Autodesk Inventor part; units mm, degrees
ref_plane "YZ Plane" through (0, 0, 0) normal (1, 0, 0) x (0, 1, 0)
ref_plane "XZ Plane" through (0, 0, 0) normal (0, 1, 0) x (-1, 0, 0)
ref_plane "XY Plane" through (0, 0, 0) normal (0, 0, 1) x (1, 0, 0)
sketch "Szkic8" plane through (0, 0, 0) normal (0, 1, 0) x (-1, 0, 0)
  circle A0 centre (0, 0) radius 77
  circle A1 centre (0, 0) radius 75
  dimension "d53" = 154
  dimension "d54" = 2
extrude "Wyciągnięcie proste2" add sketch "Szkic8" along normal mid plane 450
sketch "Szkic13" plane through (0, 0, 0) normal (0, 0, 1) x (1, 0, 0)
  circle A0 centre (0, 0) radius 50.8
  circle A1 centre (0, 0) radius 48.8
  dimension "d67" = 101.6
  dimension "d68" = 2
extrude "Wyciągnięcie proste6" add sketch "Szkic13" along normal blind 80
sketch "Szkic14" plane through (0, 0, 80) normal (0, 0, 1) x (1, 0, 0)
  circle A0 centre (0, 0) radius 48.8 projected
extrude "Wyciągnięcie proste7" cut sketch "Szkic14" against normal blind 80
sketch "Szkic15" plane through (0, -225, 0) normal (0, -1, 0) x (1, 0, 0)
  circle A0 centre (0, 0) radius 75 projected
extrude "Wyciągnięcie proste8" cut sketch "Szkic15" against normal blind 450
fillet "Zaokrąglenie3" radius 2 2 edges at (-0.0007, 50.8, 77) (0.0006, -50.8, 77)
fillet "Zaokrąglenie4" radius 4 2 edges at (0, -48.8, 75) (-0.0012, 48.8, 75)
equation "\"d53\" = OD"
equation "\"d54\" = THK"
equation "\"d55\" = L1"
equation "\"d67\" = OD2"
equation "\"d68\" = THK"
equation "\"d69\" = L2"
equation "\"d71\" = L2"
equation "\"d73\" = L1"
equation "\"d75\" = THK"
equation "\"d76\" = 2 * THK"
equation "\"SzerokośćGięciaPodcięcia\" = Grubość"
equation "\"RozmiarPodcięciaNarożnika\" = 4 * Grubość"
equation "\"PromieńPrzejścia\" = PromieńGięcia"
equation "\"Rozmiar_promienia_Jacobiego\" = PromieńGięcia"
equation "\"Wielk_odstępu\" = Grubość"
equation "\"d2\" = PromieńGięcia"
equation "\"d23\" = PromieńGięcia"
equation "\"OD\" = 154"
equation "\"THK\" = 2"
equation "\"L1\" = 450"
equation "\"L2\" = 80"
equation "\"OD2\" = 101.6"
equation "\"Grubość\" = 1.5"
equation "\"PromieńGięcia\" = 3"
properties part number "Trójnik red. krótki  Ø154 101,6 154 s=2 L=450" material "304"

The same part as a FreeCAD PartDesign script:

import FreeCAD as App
import Part
import Sketcher


def edges_at(feature, points):
    """Names of the edges that pass closest to the given points."""
    edges = feature.Shape.Edges
    near = lambda p: min(range(len(edges)), key=lambda i: edges[i].distToShape(Part.Vertex(*p))[0])
    return sorted({f"Edge{near(p) + 1}" for p in points})

doc = App.newDocument("Part")
params = doc.addObject("Spreadsheet::Sheet", "Params")
for row, (alias, value) in enumerate([
    ("sketch1_diameter", "154 mm"),
    ("sketch1_diameter2", "150 mm"),
    ("pad1_length", "450 mm"),
    ("sketch2_diameter", "101.6 mm"),
    ("sketch2_diameter2", "97.6 mm"),
    ("pad2_length", "80 mm"),
    ("sketch3_diameter", "97.6 mm"),
    ("pocket1_length", "80 mm"),
    ("sketch4_diameter", "150 mm"),
    ("pocket2_length", "450 mm"),
    ("fillet_radius", "2 mm"),
    ("fillet2_radius", "4 mm"),
], start=1):
    params.set(f"A{row}", alias)
    params.set(f"B{row}", "=" + value)
    params.setAlias(f"B{row}", alias)

body = doc.addObject("PartDesign::Body", "Body")

sketch1 = body.newObject("Sketcher::SketchObject", "Sketch")
sketch1.AttachmentSupport = (doc.getObject("XZ_Plane"), [""])
sketch1.MapMode = "FlatFace"
sketch1.addGeometry([
    Part.Circle(App.Vector(0, 0, 0), App.Vector(0, 0, 1), 77),
    Part.Circle(App.Vector(0, 0, 0), App.Vector(0, 0, 1), 75),
], False)
sketch1.addConstraint([
    Sketcher.Constraint("Coincident", 0, 3, -1, 1),
    Sketcher.Constraint("Coincident", 1, 3, -1, 1),
    Sketcher.Constraint("Diameter", 0, 154.0),
    Sketcher.Constraint("Diameter", 1, 150.0),
])
sketch1.setExpression("Constraints[2]", "Params.sketch1_diameter")
sketch1.setExpression("Constraints[3]", "Params.sketch1_diameter2")
pad1 = body.newObject("PartDesign::Pad", "Pad")
pad1.Profile = sketch1
pad1.setExpression("Length", "Params.pad1_length")
pad1.Midplane = True

sketch2 = body.newObject("Sketcher::SketchObject", "Sketch001")
sketch2.AttachmentSupport = (doc.getObject("XY_Plane"), [""])
sketch2.MapMode = "FlatFace"
sketch2.addGeometry([
    Part.Circle(App.Vector(0, 0, 0), App.Vector(0, 0, 1), 51),
    Part.Circle(App.Vector(0, 0, 0), App.Vector(0, 0, 1), 49),
], False)
sketch2.addConstraint([
    Sketcher.Constraint("Coincident", 0, 3, -1, 1),
    Sketcher.Constraint("Coincident", 1, 3, -1, 1),
    Sketcher.Constraint("Diameter", 0, 101.6),
    Sketcher.Constraint("Diameter", 1, 97.6),
])
sketch2.setExpression("Constraints[2]", "Params.sketch2_diameter")
sketch2.setExpression("Constraints[3]", "Params.sketch2_diameter2")
pad2 = body.newObject("PartDesign::Pad", "Pad001")
pad2.Profile = sketch2
pad2.setExpression("Length", "Params.pad2_length")

sketch3 = body.newObject("Sketcher::SketchObject", "Sketch002")
sketch3.AttachmentSupport = (doc.getObject("XY_Plane"), [""])
sketch3.MapMode = "FlatFace"
sketch3.AttachmentOffset = App.Placement(App.Vector(0, 0, 80), App.Rotation())
sketch3.addGeometry(Part.Circle(App.Vector(0, 0, 0), App.Vector(0, 0, 1), 49), False)
sketch3.addConstraint([
    Sketcher.Constraint("Coincident", 0, 3, -1, 1),
    Sketcher.Constraint("Diameter", 0, 97.6),
])
sketch3.setExpression("Constraints[1]", "Params.sketch3_diameter")
pocket1 = body.newObject("PartDesign::Pocket", "Pocket")
pocket1.Profile = sketch3
pocket1.setExpression("Length", "Params.pocket1_length")

sketch4 = body.newObject("Sketcher::SketchObject", "Sketch003")
sketch4.AttachmentSupport = (doc.getObject("XZ_Plane"), [""])
sketch4.MapMode = "FlatFace"
sketch4.AttachmentOffset = App.Placement(App.Vector(0, 0, 225), App.Rotation())
sketch4.addGeometry(Part.Circle(App.Vector(0, 0, 0), App.Vector(0, 0, 1), 75), False)
sketch4.addConstraint([
    Sketcher.Constraint("Coincident", 0, 3, -1, 1),
    Sketcher.Constraint("Diameter", 0, 150.0),
])
sketch4.setExpression("Constraints[1]", "Params.sketch4_diameter")
pocket2 = body.newObject("PartDesign::Pocket", "Pocket001")
pocket2.Profile = sketch4
pocket2.setExpression("Length", "Params.pocket2_length")
doc.recompute()

fillet = body.newObject("PartDesign::Fillet", "Fillet")
fillet.Base = (pocket2, edges_at(pocket2, [(-0.001, 50.8, 77), (0.001, -50.8, 77)]))
fillet.setExpression("Radius", "Params.fillet_radius")
doc.recompute()

fillet2 = body.newObject("PartDesign::Fillet", "Fillet001")
fillet2.Base = (fillet, edges_at(fillet, [(0, -48.8, 75), (-0.001, 48.8, 75)]))
fillet2.setExpression("Radius", "Params.fillet2_radius")

doc.recompute()
